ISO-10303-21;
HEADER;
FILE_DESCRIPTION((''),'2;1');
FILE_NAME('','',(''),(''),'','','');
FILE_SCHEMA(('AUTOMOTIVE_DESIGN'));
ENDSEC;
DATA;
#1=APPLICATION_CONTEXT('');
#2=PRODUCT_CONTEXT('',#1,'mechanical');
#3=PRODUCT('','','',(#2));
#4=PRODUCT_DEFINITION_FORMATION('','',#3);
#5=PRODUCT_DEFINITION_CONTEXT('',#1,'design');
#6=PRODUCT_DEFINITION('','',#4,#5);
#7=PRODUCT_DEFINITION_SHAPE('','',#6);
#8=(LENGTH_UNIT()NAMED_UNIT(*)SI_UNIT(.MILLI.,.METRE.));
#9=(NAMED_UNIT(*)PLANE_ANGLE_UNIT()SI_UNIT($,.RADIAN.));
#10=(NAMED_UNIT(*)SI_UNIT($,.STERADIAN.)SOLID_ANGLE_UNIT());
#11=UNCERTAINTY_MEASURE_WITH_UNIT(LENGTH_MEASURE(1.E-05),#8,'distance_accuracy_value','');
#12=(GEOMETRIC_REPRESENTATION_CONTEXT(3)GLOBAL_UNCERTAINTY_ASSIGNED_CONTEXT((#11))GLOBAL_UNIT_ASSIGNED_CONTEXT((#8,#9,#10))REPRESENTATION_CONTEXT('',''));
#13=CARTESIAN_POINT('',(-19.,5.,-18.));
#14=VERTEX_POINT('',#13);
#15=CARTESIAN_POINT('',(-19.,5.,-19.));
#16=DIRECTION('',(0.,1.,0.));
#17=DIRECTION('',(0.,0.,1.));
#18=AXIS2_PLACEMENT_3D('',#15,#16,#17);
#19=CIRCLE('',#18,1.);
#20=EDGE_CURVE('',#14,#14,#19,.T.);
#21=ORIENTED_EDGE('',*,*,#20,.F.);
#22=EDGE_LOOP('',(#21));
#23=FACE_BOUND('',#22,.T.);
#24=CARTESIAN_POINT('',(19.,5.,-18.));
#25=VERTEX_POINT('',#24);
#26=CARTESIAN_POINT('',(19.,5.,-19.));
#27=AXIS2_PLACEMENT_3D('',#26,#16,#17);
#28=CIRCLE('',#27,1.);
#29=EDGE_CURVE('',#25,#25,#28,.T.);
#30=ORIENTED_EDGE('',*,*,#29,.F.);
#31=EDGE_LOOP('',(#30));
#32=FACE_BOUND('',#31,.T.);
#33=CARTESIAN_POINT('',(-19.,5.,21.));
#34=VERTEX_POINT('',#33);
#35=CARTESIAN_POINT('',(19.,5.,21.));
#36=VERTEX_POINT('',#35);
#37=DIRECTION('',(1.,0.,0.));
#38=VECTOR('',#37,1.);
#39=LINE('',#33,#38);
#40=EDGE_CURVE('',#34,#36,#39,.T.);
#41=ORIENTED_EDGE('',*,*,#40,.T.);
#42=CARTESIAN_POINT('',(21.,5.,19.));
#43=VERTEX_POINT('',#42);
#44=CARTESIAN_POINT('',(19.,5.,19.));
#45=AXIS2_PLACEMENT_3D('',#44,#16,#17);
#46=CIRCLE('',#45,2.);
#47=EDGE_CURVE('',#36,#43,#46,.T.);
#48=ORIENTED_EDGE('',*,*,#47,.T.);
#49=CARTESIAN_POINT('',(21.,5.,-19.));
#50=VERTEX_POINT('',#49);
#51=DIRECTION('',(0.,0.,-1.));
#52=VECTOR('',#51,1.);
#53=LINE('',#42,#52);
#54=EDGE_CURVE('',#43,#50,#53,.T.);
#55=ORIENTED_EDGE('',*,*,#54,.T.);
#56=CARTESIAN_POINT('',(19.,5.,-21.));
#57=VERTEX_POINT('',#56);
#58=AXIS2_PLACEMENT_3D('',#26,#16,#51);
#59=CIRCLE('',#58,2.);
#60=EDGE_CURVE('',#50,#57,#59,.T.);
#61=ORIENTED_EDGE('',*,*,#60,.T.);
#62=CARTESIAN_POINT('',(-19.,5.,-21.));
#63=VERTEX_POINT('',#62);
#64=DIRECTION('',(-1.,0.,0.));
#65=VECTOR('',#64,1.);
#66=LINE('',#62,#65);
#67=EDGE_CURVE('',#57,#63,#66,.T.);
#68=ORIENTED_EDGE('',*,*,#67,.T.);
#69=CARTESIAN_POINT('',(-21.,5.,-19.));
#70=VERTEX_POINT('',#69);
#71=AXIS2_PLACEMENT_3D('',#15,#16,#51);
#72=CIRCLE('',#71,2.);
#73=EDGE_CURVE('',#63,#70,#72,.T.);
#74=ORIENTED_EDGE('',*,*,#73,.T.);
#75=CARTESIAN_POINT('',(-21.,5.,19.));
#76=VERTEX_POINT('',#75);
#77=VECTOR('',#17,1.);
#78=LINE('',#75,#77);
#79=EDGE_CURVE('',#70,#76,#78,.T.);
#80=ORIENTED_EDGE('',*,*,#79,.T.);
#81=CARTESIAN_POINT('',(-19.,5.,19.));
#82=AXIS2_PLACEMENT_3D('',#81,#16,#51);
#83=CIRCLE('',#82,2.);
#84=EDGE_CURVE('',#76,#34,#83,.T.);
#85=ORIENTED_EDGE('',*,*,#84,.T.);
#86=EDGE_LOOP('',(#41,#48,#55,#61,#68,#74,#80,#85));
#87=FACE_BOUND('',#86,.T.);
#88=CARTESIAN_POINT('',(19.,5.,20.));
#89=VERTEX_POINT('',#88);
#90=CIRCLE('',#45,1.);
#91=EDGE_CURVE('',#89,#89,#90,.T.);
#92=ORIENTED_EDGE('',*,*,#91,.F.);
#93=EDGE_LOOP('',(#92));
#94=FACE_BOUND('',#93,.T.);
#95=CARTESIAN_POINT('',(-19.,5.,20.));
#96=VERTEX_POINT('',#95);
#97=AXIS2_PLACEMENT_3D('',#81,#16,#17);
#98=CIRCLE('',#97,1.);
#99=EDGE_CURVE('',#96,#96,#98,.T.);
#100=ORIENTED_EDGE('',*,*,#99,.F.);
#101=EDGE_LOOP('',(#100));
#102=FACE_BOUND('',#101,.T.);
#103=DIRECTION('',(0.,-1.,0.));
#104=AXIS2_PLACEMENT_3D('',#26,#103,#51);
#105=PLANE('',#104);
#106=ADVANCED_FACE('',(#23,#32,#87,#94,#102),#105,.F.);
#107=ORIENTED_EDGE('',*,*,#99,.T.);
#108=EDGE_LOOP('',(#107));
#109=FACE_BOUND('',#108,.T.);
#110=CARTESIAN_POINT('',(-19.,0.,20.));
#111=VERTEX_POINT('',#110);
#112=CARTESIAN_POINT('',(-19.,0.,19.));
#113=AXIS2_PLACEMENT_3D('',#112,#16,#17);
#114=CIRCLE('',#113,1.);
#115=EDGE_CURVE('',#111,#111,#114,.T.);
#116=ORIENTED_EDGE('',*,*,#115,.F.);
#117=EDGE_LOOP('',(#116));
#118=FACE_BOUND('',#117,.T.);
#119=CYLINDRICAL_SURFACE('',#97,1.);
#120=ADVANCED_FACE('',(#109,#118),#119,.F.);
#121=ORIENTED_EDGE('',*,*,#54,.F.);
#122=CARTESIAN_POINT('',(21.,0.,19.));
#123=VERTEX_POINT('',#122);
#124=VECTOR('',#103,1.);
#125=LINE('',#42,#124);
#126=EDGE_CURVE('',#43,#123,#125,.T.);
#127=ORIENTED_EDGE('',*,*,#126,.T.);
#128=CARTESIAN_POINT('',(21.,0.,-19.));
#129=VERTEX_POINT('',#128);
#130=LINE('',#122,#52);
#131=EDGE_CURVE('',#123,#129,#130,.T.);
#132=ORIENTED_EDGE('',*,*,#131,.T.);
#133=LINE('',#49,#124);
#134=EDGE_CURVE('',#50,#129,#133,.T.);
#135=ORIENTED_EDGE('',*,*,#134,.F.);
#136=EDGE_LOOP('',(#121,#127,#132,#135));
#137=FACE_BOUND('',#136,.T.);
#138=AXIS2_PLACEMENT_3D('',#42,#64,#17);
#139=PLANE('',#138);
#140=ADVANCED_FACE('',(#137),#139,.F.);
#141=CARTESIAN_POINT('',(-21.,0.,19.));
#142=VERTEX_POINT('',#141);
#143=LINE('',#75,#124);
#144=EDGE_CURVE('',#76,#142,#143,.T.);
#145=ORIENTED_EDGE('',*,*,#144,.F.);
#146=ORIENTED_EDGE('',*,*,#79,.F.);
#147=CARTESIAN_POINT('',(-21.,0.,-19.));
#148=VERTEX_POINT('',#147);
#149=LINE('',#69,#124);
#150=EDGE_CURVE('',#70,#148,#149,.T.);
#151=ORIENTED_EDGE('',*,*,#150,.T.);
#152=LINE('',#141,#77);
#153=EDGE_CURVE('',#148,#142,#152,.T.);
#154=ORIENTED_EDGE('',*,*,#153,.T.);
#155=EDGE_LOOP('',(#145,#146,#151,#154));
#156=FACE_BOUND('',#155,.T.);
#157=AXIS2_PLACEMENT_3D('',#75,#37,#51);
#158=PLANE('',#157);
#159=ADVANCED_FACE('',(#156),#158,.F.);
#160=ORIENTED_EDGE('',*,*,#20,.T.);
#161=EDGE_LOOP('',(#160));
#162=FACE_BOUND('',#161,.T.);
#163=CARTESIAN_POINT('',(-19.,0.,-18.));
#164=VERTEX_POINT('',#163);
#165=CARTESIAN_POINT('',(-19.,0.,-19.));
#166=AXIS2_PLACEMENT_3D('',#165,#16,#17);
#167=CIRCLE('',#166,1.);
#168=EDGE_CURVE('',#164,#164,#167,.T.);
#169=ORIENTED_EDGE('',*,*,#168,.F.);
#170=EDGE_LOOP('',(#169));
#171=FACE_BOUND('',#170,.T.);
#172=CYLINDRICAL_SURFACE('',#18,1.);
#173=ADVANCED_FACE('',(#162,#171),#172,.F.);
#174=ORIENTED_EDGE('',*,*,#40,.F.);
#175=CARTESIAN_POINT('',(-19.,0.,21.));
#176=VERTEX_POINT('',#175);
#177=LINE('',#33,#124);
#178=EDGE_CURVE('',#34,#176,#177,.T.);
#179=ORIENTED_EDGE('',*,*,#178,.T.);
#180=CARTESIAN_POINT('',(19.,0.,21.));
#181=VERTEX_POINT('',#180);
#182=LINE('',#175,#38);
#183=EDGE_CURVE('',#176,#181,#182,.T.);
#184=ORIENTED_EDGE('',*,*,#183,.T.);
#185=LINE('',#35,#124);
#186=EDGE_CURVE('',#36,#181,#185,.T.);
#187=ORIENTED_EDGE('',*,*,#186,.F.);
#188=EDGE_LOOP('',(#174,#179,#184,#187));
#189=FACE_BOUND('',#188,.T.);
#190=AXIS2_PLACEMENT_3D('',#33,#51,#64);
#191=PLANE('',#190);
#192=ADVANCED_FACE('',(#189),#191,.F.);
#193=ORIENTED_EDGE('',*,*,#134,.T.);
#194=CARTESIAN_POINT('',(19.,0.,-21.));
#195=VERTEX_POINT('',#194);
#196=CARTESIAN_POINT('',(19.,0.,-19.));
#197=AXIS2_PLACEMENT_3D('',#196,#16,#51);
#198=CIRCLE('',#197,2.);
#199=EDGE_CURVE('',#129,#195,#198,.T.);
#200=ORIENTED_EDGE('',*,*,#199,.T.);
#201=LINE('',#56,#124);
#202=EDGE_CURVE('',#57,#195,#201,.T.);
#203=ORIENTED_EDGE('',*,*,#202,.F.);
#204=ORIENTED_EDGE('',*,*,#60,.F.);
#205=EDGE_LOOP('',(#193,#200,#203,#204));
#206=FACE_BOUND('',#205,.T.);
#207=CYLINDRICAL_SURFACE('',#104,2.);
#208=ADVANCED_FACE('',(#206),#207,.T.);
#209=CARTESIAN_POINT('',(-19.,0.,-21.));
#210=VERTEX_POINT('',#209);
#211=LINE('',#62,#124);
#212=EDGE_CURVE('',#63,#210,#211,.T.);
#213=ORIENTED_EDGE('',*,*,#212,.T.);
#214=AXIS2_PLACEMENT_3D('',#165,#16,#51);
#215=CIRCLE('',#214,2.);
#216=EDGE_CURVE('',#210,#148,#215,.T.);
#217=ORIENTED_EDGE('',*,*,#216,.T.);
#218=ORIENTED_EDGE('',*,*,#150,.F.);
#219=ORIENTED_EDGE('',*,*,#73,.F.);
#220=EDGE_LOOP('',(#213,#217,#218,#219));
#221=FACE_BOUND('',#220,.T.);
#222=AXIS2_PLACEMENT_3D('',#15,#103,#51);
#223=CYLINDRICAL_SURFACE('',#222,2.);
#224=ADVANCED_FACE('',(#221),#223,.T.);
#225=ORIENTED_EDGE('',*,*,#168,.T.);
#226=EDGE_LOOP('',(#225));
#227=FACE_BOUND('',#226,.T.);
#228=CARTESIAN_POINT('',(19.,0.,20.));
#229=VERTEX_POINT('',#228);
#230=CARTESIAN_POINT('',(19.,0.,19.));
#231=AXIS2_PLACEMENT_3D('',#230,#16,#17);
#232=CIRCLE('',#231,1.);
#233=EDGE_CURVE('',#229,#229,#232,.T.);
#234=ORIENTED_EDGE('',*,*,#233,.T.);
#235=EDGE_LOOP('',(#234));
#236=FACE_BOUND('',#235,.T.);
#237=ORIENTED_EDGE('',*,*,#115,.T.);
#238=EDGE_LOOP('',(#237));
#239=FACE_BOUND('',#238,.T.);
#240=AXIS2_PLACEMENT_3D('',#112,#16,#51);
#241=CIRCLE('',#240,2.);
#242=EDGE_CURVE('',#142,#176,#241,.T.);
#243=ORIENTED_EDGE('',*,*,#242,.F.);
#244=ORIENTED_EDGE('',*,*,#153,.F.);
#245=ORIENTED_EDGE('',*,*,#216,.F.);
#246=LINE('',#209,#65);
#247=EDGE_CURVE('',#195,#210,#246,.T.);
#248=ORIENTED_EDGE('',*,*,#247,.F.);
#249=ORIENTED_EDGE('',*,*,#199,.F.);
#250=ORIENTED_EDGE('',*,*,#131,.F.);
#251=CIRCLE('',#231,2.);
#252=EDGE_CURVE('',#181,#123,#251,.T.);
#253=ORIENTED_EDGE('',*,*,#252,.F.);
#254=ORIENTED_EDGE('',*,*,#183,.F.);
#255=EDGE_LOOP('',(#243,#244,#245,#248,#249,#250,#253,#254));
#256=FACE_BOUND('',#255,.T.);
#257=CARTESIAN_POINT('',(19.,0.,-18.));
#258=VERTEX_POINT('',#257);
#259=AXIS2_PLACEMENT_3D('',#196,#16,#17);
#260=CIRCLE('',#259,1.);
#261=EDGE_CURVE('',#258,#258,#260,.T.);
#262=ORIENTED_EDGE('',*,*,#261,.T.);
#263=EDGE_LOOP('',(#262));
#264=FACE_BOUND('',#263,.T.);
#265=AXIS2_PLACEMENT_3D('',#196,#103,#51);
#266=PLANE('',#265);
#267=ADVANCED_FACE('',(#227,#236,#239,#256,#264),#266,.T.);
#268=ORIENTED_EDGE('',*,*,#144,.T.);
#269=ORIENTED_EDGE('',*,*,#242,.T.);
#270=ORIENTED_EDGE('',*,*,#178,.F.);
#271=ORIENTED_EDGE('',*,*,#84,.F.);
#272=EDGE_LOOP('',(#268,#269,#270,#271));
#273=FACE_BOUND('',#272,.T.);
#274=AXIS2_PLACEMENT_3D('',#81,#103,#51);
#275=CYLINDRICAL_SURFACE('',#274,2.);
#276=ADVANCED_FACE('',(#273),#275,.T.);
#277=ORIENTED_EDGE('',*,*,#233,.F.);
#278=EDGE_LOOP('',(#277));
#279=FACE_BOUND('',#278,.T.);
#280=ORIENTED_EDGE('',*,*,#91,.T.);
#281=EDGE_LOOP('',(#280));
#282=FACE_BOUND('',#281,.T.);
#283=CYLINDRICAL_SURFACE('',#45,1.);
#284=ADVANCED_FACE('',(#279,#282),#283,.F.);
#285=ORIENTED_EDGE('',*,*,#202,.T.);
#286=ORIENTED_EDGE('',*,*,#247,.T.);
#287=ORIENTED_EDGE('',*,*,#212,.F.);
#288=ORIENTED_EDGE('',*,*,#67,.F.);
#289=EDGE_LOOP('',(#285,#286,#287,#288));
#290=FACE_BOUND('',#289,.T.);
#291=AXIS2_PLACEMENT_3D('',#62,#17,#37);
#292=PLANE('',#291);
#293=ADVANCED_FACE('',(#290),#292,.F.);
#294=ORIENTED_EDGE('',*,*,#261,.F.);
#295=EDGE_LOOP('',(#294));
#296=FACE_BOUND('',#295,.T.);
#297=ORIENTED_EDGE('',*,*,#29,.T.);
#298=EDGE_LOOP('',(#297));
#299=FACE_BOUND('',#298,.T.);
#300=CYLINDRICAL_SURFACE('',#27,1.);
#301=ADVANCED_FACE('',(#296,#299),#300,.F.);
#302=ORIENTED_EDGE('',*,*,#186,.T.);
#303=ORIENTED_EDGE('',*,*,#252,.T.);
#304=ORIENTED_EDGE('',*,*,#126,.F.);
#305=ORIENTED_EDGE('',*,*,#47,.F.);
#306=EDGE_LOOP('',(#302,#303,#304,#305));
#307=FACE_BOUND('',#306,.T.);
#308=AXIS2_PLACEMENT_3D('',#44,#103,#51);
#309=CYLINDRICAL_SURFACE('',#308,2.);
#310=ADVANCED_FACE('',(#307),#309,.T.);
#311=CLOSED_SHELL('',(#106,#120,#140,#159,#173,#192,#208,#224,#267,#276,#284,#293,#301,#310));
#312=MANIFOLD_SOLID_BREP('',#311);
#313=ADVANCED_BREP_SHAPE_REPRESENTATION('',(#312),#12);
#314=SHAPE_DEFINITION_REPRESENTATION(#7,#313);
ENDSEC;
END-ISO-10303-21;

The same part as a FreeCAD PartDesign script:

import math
import FreeCAD as App
import Part
import Sketcher

V = App.Vector
Q = App.Units.Quantity

doc = App.newDocument("Part")
params = doc.addObject("Spreadsheet::Sheet", "Params")
for row, (alias, value) in enumerate([
    ("sketch1_radius", "2 mm"),
    ("sketch1_width", "38 mm"),
    ("pad1_length", "5 mm"),
    ("sketch2_diameter", "2 mm"),
    ("hole_diameter", "2 mm"),
    ("sketch3_diameter", "2 mm"),
    ("hole2_diameter", "2 mm"),
], start=1):
    params.set(f"A{row}", alias)
    params.set(f"B{row}", "=" + value)
    params.setAlias(f"B{row}", alias)

body = doc.addObject("PartDesign::Body", "Body")

# Sketch on XZ plane
sketch1 = body.newObject("Sketcher::SketchObject", "Sketch")
sketch1.AttachmentSupport = (doc.getObject("XZ_Plane"), [""])
sketch1.MapMode = "FlatFace"
sketch1.addGeometry([
    Part.LineSegment(V(-19, 21, 0), V(19, 21, 0)),  # 0
    Part.ArcOfCircle(Part.Circle(V(19, 19, 0), V(0, 0, 1), 2), math.radians(0), math.radians(90)),  # 1
    Part.LineSegment(V(21, 19, 0), V(21, -19, 0)),  # 2
    Part.ArcOfCircle(Part.Circle(V(19, -19, 0), V(0, 0, 1), 2), math.radians(-90), math.radians(0)),  # 3
    Part.LineSegment(V(19, -21, 0), V(-19, -21, 0)),  # 4
    Part.ArcOfCircle(Part.Circle(V(-19, -19, 0), V(0, 0, 1), 2), math.radians(-180), math.radians(-90)),  # 5
    Part.LineSegment(V(-21, -19, 0), V(-21, 19, 0)),  # 6
    Part.ArcOfCircle(Part.Circle(V(-19, 19, 0), V(0, 0, 1), 2), math.radians(90), math.radians(180)),  # 7
], False)
sketch1.addConstraint([
    Sketcher.Constraint("Tangent", 0, 2, 1, 2),
    Sketcher.Constraint("Tangent", 1, 1, 2, 1),
    Sketcher.Constraint("Tangent", 2, 2, 3, 2),
    Sketcher.Constraint("Tangent", 3, 1, 4, 1),
    Sketcher.Constraint("Tangent", 4, 2, 5, 2),
    Sketcher.Constraint("Tangent", 5, 1, 6, 1),
    Sketcher.Constraint("Tangent", 6, 2, 7, 2),
    Sketcher.Constraint("Tangent", 7, 1, 0, 1),
    Sketcher.Constraint("Horizontal", 0),
    Sketcher.Constraint("Vertical", 2),
    Sketcher.Constraint("Horizontal", 4),
    Sketcher.Constraint("Vertical", 6),
    Sketcher.Constraint("Equal", 1, 3),
    Sketcher.Constraint("Equal", 3, 5),
    Sketcher.Constraint("Equal", 5, 7),
    Sketcher.Constraint("Symmetric", 1, 3, 5, 3, -1, 1),
    Sketcher.Constraint("Equal", 4, 2),
    Sketcher.Constraint("Radius", 1, Q("2 mm")),
    Sketcher.Constraint("DistanceX", 0, 1, 0, 2, Q("38 mm")),
])
sketch1.setExpression("Constraints[17]", "Params.sketch1_radius")
sketch1.setExpression("Constraints[18]", "Params.sketch1_width")
pad1 = body.newObject("PartDesign::Pad", "Pad")
pad1.Profile = sketch1
pad1.setExpression("Length", "Params.pad1_length")
pad1.Reversed = True

# Sketch on XZ plane
sketch2 = body.newObject("Sketcher::SketchObject", "Sketch001")
sketch2.AttachmentSupport = (doc.getObject("XZ_Plane"), [""])
sketch2.MapMode = "FlatFace"
sketch2.AttachmentOffset = App.Placement(V(0, 0, -5), App.Rotation())
sketch2.addGeometry(Part.Circle(V(-19, -19, 0), V(0, 0, 1), 1), False)
sketch2.addConstraint([
    Sketcher.Constraint("Diameter", 0, Q("2 mm")),
    Sketcher.Constraint("DistanceX", 0, 3, -1, 1, Q("19 mm")),
    Sketcher.Constraint("DistanceY", 0, 3, -1, 1, Q("19 mm")),
])
sketch2.setExpression("Constraints[0]", "Params.sketch2_diameter")
doc.recompute()
hole = body.newObject("PartDesign::Hole", "Hole")
hole.Profile = sketch2
hole.ThreadType = "None"
hole.setExpression("Diameter", "Params.hole_diameter")
hole.DepthType = "ThroughAll"
hole.Reversed = True
doc.recompute()

mirrored = body.newObject("PartDesign::Mirrored", "Mirrored")
mirrored.Originals = [hole]
mirrored.MirrorPlane = (doc.getObject("YZ_Plane"), [""])
body.Tip = mirrored
doc.recompute()

mirrored2 = body.newObject("PartDesign::Mirrored", "Mirrored001")
mirrored2.Originals = [hole]
mirrored2.MirrorPlane = (doc.getObject("XY_Plane"), [""])
body.Tip = mirrored2

# Sketch on XZ plane
sketch3 = body.newObject("Sketcher::SketchObject", "Sketch002")
sketch3.AttachmentSupport = (doc.getObject("XZ_Plane"), [""])
sketch3.MapMode = "FlatFace"
sketch3.AttachmentOffset = App.Placement(V(0, 0, -5), App.Rotation())
sketch3.addGeometry(Part.Circle(V(19, 19, 0), V(0, 0, 1), 1), False)
sketch3.addConstraint([
    Sketcher.Constraint("Diameter", 0, Q("2 mm")),
    Sketcher.Constraint("DistanceX", -1, 1, 0, 3, Q("19 mm")),
    Sketcher.Constraint("DistanceY", -1, 1, 0, 3, Q("19 mm")),
])
sketch3.setExpression("Constraints[0]", "Params.sketch3_diameter")
doc.recompute()
hole2 = body.newObject("PartDesign::Hole", "Hole001")
hole2.Profile = sketch3
hole2.ThreadType = "None"
hole2.setExpression("Diameter", "Params.hole2_diameter")
hole2.DepthType = "ThroughAll"
hole2.Reversed = True

doc.recompute()
